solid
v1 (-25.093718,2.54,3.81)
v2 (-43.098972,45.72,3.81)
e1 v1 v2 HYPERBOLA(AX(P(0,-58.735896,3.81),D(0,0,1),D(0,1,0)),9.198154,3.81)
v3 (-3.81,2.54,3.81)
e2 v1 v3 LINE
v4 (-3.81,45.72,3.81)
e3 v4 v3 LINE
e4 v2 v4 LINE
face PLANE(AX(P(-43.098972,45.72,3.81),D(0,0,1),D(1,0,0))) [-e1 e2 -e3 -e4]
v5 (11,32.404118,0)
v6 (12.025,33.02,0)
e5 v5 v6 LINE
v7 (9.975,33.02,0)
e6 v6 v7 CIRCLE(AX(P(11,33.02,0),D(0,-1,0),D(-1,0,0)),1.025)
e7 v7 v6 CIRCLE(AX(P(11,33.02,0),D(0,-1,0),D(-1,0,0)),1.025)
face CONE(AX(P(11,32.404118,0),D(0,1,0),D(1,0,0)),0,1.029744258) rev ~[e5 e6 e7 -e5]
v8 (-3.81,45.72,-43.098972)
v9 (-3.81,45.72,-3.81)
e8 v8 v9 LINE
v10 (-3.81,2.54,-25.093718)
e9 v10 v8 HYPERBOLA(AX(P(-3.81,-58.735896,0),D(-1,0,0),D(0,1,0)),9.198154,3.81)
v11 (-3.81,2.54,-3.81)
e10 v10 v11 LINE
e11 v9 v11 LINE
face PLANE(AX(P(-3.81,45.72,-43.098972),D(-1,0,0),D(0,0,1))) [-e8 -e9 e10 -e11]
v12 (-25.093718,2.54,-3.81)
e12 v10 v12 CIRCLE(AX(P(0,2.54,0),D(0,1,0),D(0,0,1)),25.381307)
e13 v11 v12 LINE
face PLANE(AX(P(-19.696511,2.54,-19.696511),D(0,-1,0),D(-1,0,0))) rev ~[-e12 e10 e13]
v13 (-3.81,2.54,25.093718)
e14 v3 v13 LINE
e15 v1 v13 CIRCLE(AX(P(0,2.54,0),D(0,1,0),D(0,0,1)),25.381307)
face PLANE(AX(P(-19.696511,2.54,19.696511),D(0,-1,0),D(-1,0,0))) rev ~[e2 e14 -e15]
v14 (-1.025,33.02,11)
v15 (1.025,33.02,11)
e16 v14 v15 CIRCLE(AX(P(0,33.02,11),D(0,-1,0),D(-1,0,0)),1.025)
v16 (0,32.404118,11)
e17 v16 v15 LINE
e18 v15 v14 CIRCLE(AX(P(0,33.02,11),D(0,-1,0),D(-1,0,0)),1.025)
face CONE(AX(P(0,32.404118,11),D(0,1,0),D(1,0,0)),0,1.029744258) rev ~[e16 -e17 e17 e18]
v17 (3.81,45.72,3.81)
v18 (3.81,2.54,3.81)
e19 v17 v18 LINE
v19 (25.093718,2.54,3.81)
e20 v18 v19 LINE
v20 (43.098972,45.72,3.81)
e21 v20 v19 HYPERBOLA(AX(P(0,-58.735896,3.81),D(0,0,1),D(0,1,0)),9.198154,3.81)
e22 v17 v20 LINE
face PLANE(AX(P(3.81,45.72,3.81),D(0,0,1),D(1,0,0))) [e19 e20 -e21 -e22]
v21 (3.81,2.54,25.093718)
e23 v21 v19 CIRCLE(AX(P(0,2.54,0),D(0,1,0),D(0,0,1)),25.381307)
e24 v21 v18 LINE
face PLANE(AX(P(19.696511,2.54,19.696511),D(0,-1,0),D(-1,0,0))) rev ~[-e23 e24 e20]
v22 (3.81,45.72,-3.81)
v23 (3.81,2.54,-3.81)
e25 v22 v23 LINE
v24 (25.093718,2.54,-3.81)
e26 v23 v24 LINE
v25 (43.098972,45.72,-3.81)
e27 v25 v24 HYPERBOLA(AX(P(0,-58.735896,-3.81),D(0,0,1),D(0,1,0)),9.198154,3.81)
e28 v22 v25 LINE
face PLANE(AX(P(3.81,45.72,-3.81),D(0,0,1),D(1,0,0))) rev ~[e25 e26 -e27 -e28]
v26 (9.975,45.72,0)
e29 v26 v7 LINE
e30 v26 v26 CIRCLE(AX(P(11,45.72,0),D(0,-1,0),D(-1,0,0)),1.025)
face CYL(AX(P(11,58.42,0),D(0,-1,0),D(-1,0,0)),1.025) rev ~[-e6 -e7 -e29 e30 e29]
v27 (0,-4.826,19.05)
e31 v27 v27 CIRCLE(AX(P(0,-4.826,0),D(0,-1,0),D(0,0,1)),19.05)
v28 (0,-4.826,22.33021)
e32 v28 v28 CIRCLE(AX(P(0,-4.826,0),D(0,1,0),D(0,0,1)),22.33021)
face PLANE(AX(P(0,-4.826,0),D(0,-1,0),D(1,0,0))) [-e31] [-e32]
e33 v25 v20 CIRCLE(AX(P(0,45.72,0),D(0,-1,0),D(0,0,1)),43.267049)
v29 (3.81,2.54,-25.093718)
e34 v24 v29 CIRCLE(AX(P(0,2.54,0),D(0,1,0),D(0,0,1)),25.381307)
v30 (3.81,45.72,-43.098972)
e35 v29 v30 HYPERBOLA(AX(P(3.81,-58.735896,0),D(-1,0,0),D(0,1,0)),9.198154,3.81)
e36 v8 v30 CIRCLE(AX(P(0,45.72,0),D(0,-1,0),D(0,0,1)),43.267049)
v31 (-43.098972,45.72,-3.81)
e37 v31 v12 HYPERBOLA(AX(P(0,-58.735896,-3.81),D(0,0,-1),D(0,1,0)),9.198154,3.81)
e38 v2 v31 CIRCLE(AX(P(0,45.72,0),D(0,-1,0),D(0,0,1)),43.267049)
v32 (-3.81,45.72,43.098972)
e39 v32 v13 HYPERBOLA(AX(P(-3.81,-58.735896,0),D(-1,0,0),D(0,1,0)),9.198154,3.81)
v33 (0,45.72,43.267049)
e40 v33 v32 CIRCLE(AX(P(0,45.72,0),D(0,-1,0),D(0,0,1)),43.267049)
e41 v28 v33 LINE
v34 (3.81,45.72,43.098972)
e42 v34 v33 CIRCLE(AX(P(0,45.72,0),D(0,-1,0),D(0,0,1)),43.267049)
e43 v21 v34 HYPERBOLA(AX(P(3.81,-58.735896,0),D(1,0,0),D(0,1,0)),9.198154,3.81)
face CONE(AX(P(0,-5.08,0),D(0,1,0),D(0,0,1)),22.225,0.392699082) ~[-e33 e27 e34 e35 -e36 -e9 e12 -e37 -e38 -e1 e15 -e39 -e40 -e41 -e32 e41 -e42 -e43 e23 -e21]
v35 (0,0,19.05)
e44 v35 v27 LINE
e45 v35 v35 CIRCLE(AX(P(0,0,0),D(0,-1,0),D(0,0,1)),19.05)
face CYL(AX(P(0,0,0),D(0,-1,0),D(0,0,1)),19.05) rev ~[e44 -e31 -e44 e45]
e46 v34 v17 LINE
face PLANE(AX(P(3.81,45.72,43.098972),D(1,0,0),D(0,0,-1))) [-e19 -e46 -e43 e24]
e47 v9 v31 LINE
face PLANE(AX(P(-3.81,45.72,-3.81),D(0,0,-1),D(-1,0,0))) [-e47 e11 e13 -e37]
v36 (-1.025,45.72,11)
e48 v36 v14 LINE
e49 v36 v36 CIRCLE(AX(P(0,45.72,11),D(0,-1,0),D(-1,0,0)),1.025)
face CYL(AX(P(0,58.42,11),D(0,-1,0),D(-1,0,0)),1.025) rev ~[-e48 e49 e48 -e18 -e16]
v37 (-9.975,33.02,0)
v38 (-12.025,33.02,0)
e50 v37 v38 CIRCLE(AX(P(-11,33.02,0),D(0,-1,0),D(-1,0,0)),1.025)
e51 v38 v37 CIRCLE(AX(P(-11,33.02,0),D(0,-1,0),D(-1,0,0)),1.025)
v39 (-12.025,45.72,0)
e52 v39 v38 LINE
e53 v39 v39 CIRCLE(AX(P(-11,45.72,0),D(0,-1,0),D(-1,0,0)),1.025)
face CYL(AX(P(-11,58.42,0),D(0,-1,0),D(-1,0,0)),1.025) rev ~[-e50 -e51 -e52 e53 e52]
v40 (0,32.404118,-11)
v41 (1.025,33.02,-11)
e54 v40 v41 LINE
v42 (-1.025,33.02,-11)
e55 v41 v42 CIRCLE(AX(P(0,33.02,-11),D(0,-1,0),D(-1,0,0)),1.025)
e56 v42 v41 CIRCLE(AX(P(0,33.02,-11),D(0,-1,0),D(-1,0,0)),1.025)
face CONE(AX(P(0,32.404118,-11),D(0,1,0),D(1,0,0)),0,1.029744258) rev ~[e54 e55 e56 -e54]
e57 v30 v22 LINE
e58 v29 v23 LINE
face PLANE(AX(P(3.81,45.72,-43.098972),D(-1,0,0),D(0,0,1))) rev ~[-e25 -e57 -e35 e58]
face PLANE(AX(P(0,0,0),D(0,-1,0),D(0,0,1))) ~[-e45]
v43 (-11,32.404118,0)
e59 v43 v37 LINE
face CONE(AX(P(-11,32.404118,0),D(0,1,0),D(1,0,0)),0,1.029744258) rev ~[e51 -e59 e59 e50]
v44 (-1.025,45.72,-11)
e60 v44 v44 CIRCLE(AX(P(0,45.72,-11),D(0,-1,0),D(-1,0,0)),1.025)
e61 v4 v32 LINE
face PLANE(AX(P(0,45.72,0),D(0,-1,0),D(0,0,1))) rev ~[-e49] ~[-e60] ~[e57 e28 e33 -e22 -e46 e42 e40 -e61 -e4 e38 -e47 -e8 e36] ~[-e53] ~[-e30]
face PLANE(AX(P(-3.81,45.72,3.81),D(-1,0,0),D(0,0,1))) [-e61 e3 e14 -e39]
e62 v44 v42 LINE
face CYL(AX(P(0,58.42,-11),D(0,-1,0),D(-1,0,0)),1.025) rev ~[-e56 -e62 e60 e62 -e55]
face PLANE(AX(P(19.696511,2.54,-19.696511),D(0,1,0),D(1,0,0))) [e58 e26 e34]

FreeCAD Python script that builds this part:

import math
import FreeCAD as App
import Part
import Sketcher
Q = App.Units.Quantity


def add_polygon(sketch, points):
    """Adds a closed chain of lines whose ends are joined by coincident constraints."""
    first, n = sketch.GeometryCount, len(points)
    for a, b in zip(points, points[1:] + points[:1]):
        sketch.addGeometry(Part.LineSegment(App.Vector(*a, 0), App.Vector(*b, 0)), False)
    for i in range(n):
        sketch.addConstraint(Sketcher.Constraint("Coincident", first + i, 2, first + (i + 1) % n, 1))

doc = App.newDocument("Part")
body = doc.addObject("PartDesign::Body", "Body")

# Sketch on YZ plane
sketch1 = body.newObject("Sketcher::SketchObject", "Sketch")
sketch1.AttachmentSupport = (doc.getObject("YZ_Plane"), [""])
sketch1.MapMode = "FlatFace"
add_polygon(sketch1, [(0, 19.1), (0, 0), (45.7, 0), (45.7, 43.3), (-5.1, 22.2), (-5.1, 19.1)])  # lines 0-5
sketch1.addConstraint([
    Sketcher.Constraint("Vertical", 0),
    Sketcher.Constraint("Horizontal", 1),
    Sketcher.Constraint("Vertical", 2),
    Sketcher.Constraint("Vertical", 4),
    Sketcher.Constraint("Horizontal", 5),
    Sketcher.Constraint("Coincident", 0, 2, -1, 1),
    Sketcher.Constraint("DistanceX", 1, 1, 1, 2, Q("1.8 in")),
    Sketcher.Constraint("DistanceX", 5, 1, 5, 2, Q("0.2 in")),
    Sketcher.Constraint("DistanceY", 0, 2, 0, 1, Q("0.75 in")),
    Sketcher.Constraint("Angle", 3, Q("-157.5 deg")),
    Sketcher.Constraint("DistanceY", 4, 2, 4, 1, Q("0.125 in")),
])
revolution = body.newObject("PartDesign::Revolution", "Revolution")
revolution.Profile = sketch1
revolution.ReferenceAxis = (sketch1, ["H_Axis"])
revolution.Angle = 360

# Sketch on XZ plane
sketch2 = body.newObject("Sketcher::SketchObject", "Sketch001")
sketch2.AttachmentSupport = (doc.getObject("XZ_Plane"), [""])
sketch2.MapMode = "FlatFace"
sketch2.AttachmentOffset = App.Placement(App.Vector(0, 0, -1.8 * 25.4), App.Rotation())
sketch2.addGeometry([
    Part.Circle(App.Vector(0, -11, 0), App.Vector(0, 0, 1), 1),
    Part.Circle(App.Vector(11, 0, 0), App.Vector(0, 0, 1), 1),
    Part.Circle(App.Vector(0, 11, 0), App.Vector(0, 0, 1), 1),
    Part.Circle(App.Vector(-11, 0, 0), App.Vector(0, 0, 1), 1),
], False)
sketch2.addConstraint([
    Sketcher.Constraint("Equal", 0, 1),
    Sketcher.Constraint("Equal", 1, 2),
    Sketcher.Constraint("Equal", 2, 3),
    Sketcher.Constraint("Symmetric", 0, 3, 2, 3, -1, 1),
    Sketcher.Constraint("Symmetric", 1, 3, 3, 3, -1, 1),
    Sketcher.Constraint("PointOnObject", 0, 3, -2),
    Sketcher.Constraint("PointOnObject", 1, 3, -1),
    Sketcher.Constraint("Diameter", 0, 2.05),
    Sketcher.Constraint("DistanceY", 0, 3, -1, 1, 11.0),
    Sketcher.Constraint("DistanceX", -1, 1, 1, 3, 11.0),
])
doc.recompute()
hole = body.newObject("PartDesign::Hole", "Hole")
hole.Profile = sketch2
hole.ThreadType = "None"
hole.Diameter = 2.05
hole.DepthType = "Dimension"
hole.Depth = Q("0.5 in")
hole.DrillPoint = "Angled"
hole.DrillPointAngle = 118
hole.Reversed = True

# Sketch on XZ plane
sketch3 = body.newObject("Sketcher::SketchObject", "Sketch002")
sketch3.AttachmentSupport = (doc.getObject("XZ_Plane"), [""])
sketch3.MapMode = "FlatFace"
sketch3.AttachmentOffset = App.Placement(App.Vector(0, 0, -1.8 * 25.4), App.Rotation())
sketch3.addGeometry([
    Part.LineSegment(App.Vector(-4, 43, 0), App.Vector(-4, 4, 0)),  # 0
    Part.LineSegment(App.Vector(-4, 4, 0), App.Vector(-43, 4, 0)),  # 1
    Part.ArcOfCircle(Part.Circle(App.Vector(0, 0, 0), App.Vector(0, 0, 1), 43), math.radians(95), math.radians(175)),  # 2
    Part.LineSegment(App.Vector(-4, -4, 0), App.Vector(-4, -43, 0)),  # 3
    Part.ArcOfCircle(Part.Circle(App.Vector(0, 0, 0), App.Vector(0, 0, 1), 43), math.radians(-175), math.radians(-95)),  # 4
    Part.LineSegment(App.Vector(-43, -4, 0), App.Vector(-4, -4, 0)),  # 5
    Part.LineSegment(App.Vector(4, 4, 0), App.Vector(4, 43, 0)),  # 6
    Part.ArcOfCircle(Part.Circle(App.Vector(0, 0, 0), App.Vector(0, 0, 1), 43), math.radians(5), math.radians(85)),  # 7
    Part.LineSegment(App.Vector(43, 4, 0), App.Vector(4, 4, 0)),  # 8
    Part.LineSegment(App.Vector(4, -4, 0), App.Vector(43, -4, 0)),  # 9
    Part.ArcOfCircle(Part.Circle(App.Vector(0, 0, 0), App.Vector(0, 0, 1), 43), math.radians(-85), math.radians(-5)),  # 10
    Part.LineSegment(App.Vector(4, -43, 0), App.Vector(4, -4, 0)),  # 11
], False)
sketch3.addConstraint([
    Sketcher.Constraint("Coincident", 0, 2, 1, 1),
    Sketcher.Constraint("Coincident", 1, 2, 2, 2),
    Sketcher.Constraint("Coincident", 2, 1, 0, 1),
    Sketcher.Constraint("Coincident", 3, 2, 4, 2),
    Sketcher.Constraint("Coincident", 4, 1, 5, 1),
    Sketcher.Constraint("Coincident", 5, 2, 3, 1),
    Sketcher.Constraint("Coincident", 6, 2, 7, 2),
    Sketcher.Constraint("Coincident", 7, 1, 8, 1),
    Sketcher.Constraint("Coincident", 8, 2, 6, 1),
    Sketcher.Constraint("Coincident", 9, 2, 10, 2),
    Sketcher.Constraint("Coincident", 10, 1, 11, 1),
    Sketcher.Constraint("Coincident", 11, 2, 9, 1),
    Sketcher.Constraint("Vertical", 0),
    Sketcher.Constraint("Horizontal", 1),
    Sketcher.Constraint("Vertical", 3),
    Sketcher.Constraint("Horizontal", 5),
    Sketcher.Constraint("Vertical", 6),
    Sketcher.Constraint("Horizontal", 8),
    Sketcher.Constraint("Horizontal", 9),
    Sketcher.Constraint("Vertical", 11),
    Sketcher.Constraint("Coincident", 2, 3, -1, 1),
    Sketcher.Constraint("Coincident", 4, 3, -1, 1),
    Sketcher.Constraint("Coincident", 7, 3, -1, 1),
    Sketcher.Constraint("Coincident", 10, 3, -1, 1),
    Sketcher.Constraint("Equal", 2, 4),
    Sketcher.Constraint("Equal", 4, 7),
    Sketcher.Constraint("Equal", 7, 10),
    Sketcher.Constraint("Symmetric", 5, 2, 8, 2, -1, 1),
    Sketcher.Constraint("Symmetric", 0, 2, 11, 2, -1, 1),
    Sketcher.Constraint("Symmetric", 0, 2, 8, 2, -2),
    Sketcher.Constraint("Equal", 9, 0),
    Sketcher.Constraint("DistanceY", 4, 1, 1, 2, Q("0.3 in")),
    Sketcher.Constraint("Radius", 2, 43.267049),
])
pocket1 = body.newObject("PartDesign::Pocket", "Pocket")
pocket1.Profile = sketch3
pocket1.Length = Q("1.7 in")
pocket1.Reversed = True

# Sketch on XZ plane
sketch4 = body.newObject("Sketcher::SketchObject", "Sketch003")
sketch4.AttachmentSupport = (doc.getObject("XZ_Plane"), [""])
sketch4.MapMode = "FlatFace"
sketch4.AttachmentOffset = App.Placement(App.Vector(0, 0, 0.2 * 25.4), App.Rotation())
sketch4.addGeometry(Part.Circle(App.Vector(0, 0, 0), App.Vector(0, 0, 1), 34), False)
sketch4.addConstraint([
    Sketcher.Constraint("Coincident", 0, 3, -1, 1),
    Sketcher.Constraint("Diameter", 0, 67.634058),
])
pocket2 = body.newObject("PartDesign::Pocket", "Pocket001")
pocket2.Profile = sketch4
pocket2.Length = Q("0.01 in")

doc.recompute()
